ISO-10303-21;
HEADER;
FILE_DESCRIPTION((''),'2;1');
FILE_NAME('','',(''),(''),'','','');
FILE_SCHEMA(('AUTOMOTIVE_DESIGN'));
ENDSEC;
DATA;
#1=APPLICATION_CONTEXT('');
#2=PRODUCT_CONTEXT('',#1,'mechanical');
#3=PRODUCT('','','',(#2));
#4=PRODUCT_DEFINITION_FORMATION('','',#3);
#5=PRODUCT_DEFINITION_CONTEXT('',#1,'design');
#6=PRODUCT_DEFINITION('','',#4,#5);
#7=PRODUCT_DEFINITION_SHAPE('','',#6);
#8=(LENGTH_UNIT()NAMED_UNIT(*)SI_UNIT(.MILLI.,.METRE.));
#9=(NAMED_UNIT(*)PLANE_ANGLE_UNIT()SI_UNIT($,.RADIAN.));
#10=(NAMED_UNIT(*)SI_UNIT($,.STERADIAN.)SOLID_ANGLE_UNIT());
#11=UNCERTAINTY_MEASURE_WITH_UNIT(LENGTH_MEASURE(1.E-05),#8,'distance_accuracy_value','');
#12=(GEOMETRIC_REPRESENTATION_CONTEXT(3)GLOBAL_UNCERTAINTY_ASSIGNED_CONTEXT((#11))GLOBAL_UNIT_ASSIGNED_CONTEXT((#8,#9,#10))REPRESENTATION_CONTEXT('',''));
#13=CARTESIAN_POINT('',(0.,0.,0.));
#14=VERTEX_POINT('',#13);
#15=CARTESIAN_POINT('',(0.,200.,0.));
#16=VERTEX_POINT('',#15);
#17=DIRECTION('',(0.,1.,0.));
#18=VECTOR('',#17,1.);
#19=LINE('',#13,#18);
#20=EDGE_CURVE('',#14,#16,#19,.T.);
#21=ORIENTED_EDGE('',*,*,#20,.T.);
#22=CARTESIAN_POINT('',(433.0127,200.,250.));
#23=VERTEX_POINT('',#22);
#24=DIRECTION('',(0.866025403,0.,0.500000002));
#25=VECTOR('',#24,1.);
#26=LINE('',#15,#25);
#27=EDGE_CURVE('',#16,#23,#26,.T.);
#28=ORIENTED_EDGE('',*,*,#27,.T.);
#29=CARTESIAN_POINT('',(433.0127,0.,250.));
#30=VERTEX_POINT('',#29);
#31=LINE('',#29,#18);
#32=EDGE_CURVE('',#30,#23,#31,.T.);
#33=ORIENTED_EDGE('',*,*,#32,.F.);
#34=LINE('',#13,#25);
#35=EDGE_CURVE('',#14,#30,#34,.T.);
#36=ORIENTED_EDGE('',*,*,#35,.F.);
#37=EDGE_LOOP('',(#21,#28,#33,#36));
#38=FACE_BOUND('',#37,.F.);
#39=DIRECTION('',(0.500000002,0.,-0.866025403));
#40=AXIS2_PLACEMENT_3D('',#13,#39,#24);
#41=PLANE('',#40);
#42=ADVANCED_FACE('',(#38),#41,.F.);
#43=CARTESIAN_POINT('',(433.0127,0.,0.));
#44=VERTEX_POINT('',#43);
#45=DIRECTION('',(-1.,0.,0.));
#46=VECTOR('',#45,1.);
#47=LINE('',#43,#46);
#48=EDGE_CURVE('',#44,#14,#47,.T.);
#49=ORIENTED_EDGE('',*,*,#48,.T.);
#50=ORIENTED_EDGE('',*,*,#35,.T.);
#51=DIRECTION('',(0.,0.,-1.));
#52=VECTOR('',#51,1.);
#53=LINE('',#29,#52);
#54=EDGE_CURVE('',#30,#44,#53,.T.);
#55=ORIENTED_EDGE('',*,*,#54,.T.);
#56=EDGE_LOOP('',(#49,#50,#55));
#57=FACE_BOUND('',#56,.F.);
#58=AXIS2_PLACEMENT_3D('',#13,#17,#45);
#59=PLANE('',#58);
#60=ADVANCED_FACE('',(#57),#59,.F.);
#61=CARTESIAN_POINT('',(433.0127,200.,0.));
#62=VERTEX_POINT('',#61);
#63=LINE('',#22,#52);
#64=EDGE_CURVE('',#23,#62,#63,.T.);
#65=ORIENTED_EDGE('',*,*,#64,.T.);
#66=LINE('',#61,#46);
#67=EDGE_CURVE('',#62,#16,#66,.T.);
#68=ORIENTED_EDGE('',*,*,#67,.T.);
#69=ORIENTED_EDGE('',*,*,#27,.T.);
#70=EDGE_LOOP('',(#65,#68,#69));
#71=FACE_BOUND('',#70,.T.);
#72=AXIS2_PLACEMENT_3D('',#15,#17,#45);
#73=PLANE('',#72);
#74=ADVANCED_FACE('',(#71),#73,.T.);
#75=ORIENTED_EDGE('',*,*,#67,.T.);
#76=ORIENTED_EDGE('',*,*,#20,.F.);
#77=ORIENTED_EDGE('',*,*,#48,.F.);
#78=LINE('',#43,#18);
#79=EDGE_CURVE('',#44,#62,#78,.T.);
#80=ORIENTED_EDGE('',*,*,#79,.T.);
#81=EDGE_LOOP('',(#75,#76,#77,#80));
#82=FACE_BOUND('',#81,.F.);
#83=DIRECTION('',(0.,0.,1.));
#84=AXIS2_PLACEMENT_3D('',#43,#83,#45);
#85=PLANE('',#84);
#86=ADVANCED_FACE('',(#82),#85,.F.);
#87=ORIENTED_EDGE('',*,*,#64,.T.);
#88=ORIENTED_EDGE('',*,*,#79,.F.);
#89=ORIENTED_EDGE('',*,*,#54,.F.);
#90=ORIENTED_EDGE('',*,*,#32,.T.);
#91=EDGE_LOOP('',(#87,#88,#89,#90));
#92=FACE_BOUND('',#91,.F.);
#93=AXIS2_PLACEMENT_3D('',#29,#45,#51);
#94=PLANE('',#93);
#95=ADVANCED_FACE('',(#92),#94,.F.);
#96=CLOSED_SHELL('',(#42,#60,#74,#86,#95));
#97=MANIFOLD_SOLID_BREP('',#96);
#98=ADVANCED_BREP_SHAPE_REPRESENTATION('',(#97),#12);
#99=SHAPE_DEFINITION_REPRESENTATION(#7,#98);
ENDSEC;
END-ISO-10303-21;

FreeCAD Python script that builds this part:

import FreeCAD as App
import Part
import Sketcher
Q = App.Units.Quantity


def add_polygon(sketch, points):
    """Adds a closed chain of lines whose ends are joined by coincident constraints."""
    first, n = sketch.GeometryCount, len(points)
    for a, b in zip(points, points[1:] + points[:1]):
        sketch.addGeometry(Part.LineSegment(App.Vector(*a, 0), App.Vector(*b, 0)), False)
    for i in range(n):
        sketch.addConstraint(Sketcher.Constraint("Coincident", first + i, 2, first + (i + 1) % n, 1))

doc = App.newDocument("Part")
body = doc.addObject("PartDesign::Body", "Body")

# Sketch on XZ plane
sketch1 = doc.addObject("Sketcher::SketchObject", "Sketch")
body.addObject(sketch1)
sketch1.AttachmentSupport = (doc.XZ_Plane, [""])
sketch1.MapMode = "FlatFace"
add_polygon(sketch1, [(433, 0), (0, 0), (433, 250)])  # lines 0-2
sketch1.addConstraint([
    Sketcher.Constraint("Horizontal", 0),
    Sketcher.Constraint("Vertical", 2),
    Sketcher.Constraint("Coincident", 0, 2, -1, 1),
    Sketcher.Constraint("Distance", 1, Q("500 mm")),
    Sketcher.Constraint("DistanceY", 2, 2, 2, 1, Q("250 mm")),
])
pad1 = doc.addObject("PartDesign::Pad", "Pad")
body.addObject(pad1)
pad1.Profile = sketch1
pad1.Length = 200
pad1.Reversed = True

doc.recompute()
